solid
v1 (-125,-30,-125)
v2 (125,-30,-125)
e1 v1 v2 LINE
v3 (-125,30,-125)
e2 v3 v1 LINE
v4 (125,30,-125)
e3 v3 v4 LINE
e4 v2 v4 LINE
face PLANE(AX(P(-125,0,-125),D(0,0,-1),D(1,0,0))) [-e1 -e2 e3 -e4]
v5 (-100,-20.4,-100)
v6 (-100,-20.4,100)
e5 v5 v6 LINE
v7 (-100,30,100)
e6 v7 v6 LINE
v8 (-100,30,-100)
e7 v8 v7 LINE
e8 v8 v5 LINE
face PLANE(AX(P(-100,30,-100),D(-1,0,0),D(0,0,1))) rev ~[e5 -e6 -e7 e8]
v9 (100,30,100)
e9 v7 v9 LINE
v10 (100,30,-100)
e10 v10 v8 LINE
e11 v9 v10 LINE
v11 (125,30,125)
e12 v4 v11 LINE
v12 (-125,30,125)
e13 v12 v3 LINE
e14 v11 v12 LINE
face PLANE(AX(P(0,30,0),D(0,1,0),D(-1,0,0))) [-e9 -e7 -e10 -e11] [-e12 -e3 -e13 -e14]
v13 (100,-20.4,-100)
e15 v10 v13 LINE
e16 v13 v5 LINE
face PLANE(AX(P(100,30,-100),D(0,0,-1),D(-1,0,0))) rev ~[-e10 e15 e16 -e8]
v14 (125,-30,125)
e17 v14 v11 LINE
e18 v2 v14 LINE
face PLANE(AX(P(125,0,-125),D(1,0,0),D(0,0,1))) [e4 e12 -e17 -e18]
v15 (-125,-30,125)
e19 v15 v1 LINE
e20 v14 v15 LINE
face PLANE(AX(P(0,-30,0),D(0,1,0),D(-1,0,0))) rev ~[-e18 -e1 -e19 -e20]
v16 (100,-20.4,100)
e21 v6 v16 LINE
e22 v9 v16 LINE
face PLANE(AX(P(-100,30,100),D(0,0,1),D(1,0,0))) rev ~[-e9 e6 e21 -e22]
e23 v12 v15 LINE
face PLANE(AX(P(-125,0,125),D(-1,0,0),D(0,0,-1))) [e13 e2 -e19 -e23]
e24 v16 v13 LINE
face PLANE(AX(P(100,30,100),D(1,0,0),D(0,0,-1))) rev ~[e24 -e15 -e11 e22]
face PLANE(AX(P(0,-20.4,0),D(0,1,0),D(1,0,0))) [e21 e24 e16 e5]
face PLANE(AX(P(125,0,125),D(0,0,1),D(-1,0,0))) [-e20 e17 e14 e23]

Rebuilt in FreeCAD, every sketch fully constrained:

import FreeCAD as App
import Part
import Sketcher

V = App.Vector
Q = App.Units.Quantity

doc = App.newDocument("Part")
body = doc.addObject("PartDesign::Body", "Body")

sketch1 = doc.addObject("Sketcher::SketchObject", "Sketch")
body.addObject(sketch1)
sketch1.AttachmentSupport = (doc.XZ_Plane, [""])
sketch1.MapMode = "FlatFace"
sketch1.addGeometry([
    Part.LineSegment(V(-125, 125, 0), V(125, 125, 0)),
    Part.LineSegment(V(125, 125, 0), V(125, -125, 0)),
    Part.LineSegment(V(125, -125, 0), V(-125, -125, 0)),
    Part.LineSegment(V(-125, -125, 0), V(-125, 125, 0)),
], False)
sketch1.addConstraint([
    Sketcher.Constraint("Coincident", 0, 2, 1, 1),
    Sketcher.Constraint("Coincident", 1, 2, 2, 1),
    Sketcher.Constraint("Coincident", 2, 2, 3, 1),
    Sketcher.Constraint("Coincident", 3, 2, 0, 1),
    Sketcher.Constraint("Horizontal", 0),
    Sketcher.Constraint("Vertical", 1),
    Sketcher.Constraint("Horizontal", 2),
    Sketcher.Constraint("Vertical", 3),
    Sketcher.Constraint("Symmetric", 0, 2, 2, 2, -1, 1),
    Sketcher.Constraint("Equal", 2, 1),
    Sketcher.Constraint("DistanceX", 0, 1, 0, 2, Q("250 mm")),
])
pad1 = doc.addObject("PartDesign::Pad", "Pad")
body.addObject(pad1)
pad1.Profile = sketch1
pad1.Length = 60
pad1.Midplane = True

sketch2 = doc.addObject("Sketcher::SketchObject", "Sketch001")
body.addObject(sketch2)
sketch2.AttachmentSupport = (doc.XZ_Plane, [""])
sketch2.MapMode = "FlatFace"
sketch2.AttachmentOffset = App.Placement(V(0, 0, -30), App.Rotation())
sketch2.addGeometry([
    Part.LineSegment(V(-100, -100, 0), V(-100, 100, 0)),
    Part.LineSegment(V(-100, 100, 0), V(100, 100, 0)),
    Part.LineSegment(V(100, 100, 0), V(100, -100, 0)),
    Part.LineSegment(V(100, -100, 0), V(-100, -100, 0)),
], False)
sketch2.addConstraint([
    Sketcher.Constraint("Coincident", 0, 2, 1, 1),
    Sketcher.Constraint("Coincident", 1, 2, 2, 1),
    Sketcher.Constraint("Coincident", 2, 2, 3, 1),
    Sketcher.Constraint("Coincident", 3, 2, 0, 1),
    Sketcher.Constraint("Vertical", 0),
    Sketcher.Constraint("Horizontal", 1),
    Sketcher.Constraint("Vertical", 2),
    Sketcher.Constraint("Horizontal", 3),
    Sketcher.Constraint("Symmetric", 0, 2, 2, 2, -1, 1),
    Sketcher.Constraint("Equal", 3, 0),
    Sketcher.Constraint("DistanceX", 1, 1, 1, 2, Q("200 mm")),
])
pocket1 = doc.addObject("PartDesign::Pocket", "Pocket")
body.addObject(pocket1)
pocket1.Profile = sketch2
pocket1.Length = 50.4
pocket1.Reversed = True

doc.recompute()
